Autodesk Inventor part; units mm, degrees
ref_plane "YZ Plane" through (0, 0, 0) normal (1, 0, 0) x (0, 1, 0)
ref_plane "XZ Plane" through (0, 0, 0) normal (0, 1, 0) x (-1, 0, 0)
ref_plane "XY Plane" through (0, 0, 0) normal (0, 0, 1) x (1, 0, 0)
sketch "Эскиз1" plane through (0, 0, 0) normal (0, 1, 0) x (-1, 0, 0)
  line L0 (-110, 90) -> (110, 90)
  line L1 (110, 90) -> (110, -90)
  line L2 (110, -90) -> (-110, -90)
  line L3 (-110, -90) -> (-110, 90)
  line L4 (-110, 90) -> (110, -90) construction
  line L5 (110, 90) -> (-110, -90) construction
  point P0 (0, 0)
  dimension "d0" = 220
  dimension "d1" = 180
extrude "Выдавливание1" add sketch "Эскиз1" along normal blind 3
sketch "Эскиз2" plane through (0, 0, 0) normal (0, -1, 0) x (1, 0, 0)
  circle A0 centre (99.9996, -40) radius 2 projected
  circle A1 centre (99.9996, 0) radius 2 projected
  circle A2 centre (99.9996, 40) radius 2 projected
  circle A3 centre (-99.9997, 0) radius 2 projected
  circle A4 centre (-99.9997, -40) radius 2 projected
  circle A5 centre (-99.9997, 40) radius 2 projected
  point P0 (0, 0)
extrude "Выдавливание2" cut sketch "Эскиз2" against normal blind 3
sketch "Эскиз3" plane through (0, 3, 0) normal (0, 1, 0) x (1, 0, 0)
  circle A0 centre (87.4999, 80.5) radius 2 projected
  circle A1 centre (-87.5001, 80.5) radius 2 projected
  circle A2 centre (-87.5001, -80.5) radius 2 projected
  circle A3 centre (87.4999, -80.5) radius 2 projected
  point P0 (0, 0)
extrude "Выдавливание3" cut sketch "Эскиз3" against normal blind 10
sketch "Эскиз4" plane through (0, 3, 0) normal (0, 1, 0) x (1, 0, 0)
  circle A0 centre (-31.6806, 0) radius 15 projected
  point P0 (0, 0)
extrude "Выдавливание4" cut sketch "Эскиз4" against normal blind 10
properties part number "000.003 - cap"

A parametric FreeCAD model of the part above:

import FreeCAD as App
import Part
import Sketcher
from FreeCAD import Vector


def add_polygon(sketch, points):
    """Adds a closed chain of lines whose ends are joined by coincident constraints."""
    first, n = sketch.GeometryCount, len(points)
    for a, b in zip(points, points[1:] + points[:1]):
        sketch.addGeometry(Part.LineSegment(App.Vector(*a, 0), App.Vector(*b, 0)), False)
    for i in range(n):
        sketch.addConstraint(Sketcher.Constraint("Coincident", first + i, 2, first + (i + 1) % n, 1))

doc = App.newDocument("Part")
params = doc.addObject("Spreadsheet::Sheet", "Params")
for row, (alias, value) in enumerate([
    ("sketch1_width", "220 mm"),
    ("sketch1_height", "180 mm"),
    ("pad1_length", "3 mm"),
    ("sketch2_diameter", "4 mm"),
    ("pocket1_length", "3 mm"),
    ("sketch3_diameter", "4 mm"),
    ("pocket2_length", "10 mm"),
    ("sketch4_diameter", "30 mm"),
    ("pocket3_length", "10 mm"),
], start=1):
    params.set(f"A{row}", alias)
    params.set(f"B{row}", "=" + value)
    params.setAlias(f"B{row}", alias)

body = doc.addObject("PartDesign::Body", "Body")

sketch1 = doc.addObject("Sketcher::SketchObject", "Sketch")
body.addObject(sketch1)
sketch1.AttachmentSupport = (doc.XZ_Plane, [""])
sketch1.MapMode = "FlatFace"
add_polygon(sketch1, [(-110, 90), (110, 90), (110, -90), (-110, -90)])
sketch1.addConstraint([
    Sketcher.Constraint("Horizontal", 0),
    Sketcher.Constraint("Vertical", 1),
    Sketcher.Constraint("Horizontal", 2),
    Sketcher.Constraint("Vertical", 3),
    Sketcher.Constraint("Symmetric", 0, 2, 2, 2, -1, 1),
    Sketcher.Constraint("DistanceX", 0, 1, 0, 2, 220.0),
    Sketcher.Constraint("DistanceY", 1, 2, 1, 1, 180.0),
])
sketch1.setExpression("Constraints[9]", "Params.sketch1_width")
sketch1.setExpression("Constraints[10]", "Params.sketch1_height")
pad1 = doc.addObject("PartDesign::Pad", "Pad")
body.addObject(pad1)
pad1.Profile = sketch1
pad1.setExpression("Length", "Params.pad1_length")
pad1.Reversed = True

sketch2 = doc.addObject("Sketcher::SketchObject", "Sketch001")
body.addObject(sketch2)
sketch2.AttachmentSupport = (doc.XZ_Plane, [""])
sketch2.MapMode = "FlatFace"
sketch2.addGeometry([
    Part.Circle(Vector(100, -40, 0), Vector(0, 0, 1), 2),
    Part.Circle(Vector(100, 0, 0), Vector(0, 0, 1), 2),
    Part.Circle(Vector(100, 40, 0), Vector(0, 0, 1), 2),
    Part.Circle(Vector(-100, 0, 0), Vector(0, 0, 1), 2),
    Part.Circle(Vector(-100, -40, 0), Vector(0, 0, 1), 2),
    Part.Circle(Vector(-100, 40, 0), Vector(0, 0, 1), 2),
], False)
sketch2.addConstraint([
    Sketcher.Constraint("Equal", 0, 1),
    Sketcher.Constraint("Equal", 1, 2),
    Sketcher.Constraint("Equal", 2, 3),
    Sketcher.Constraint("Equal", 3, 4),
    Sketcher.Constraint("Equal", 4, 5),
    Sketcher.Constraint("Symmetric", 1, 3, 3, 3, -1, 1),
    Sketcher.Constraint("Symmetric", 2, 3, 4, 3, -1, 1),
    Sketcher.Constraint("Symmetric", 0, 3, 5, 3, -1, 1),
    Sketcher.Constraint("Symmetric", 0, 3, 4, 3, -2),
    Sketcher.Constraint("PointOnObject", 1, 3, -1),
    Sketcher.Constraint("Vertical", 0, 3, 1, 3),
    Sketcher.Constraint("Diameter", 0, 4.0),
    Sketcher.Constraint("DistanceY", 0, 3, -1, 1, 40.0),
    Sketcher.Constraint("DistanceX", -1, 1, 0, 3, 99.9996),
])
sketch2.setExpression("Constraints[11]", "Params.sketch2_diameter")
pocket1 = doc.addObject("PartDesign::Pocket", "Pocket")
body.addObject(pocket1)
pocket1.Profile = sketch2
pocket1.setExpression("Length", "Params.pocket1_length")

sketch3 = doc.addObject("Sketcher::SketchObject", "Sketch002")
body.addObject(sketch3)
sketch3.AttachmentSupport = (doc.XZ_Plane, [""])
sketch3.MapMode = "FlatFace"
sketch3.AttachmentOffset = App.Placement(Vector(0, 0, -3), App.Rotation())
sketch3.addGeometry([
    Part.Circle(Vector(87.5, -80.5, 0), Vector(0, 0, 1), 2),
    Part.Circle(Vector(-87.5, -80.5, 0), Vector(0, 0, 1), 2),
    Part.Circle(Vector(-87.5, 80.5, 0), Vector(0, 0, 1), 2),
    Part.Circle(Vector(87.5, 80.5, 0), Vector(0, 0, 1), 2),
], False)
sketch3.addConstraint([
    Sketcher.Constraint("Equal", 0, 1),
    Sketcher.Constraint("Equal", 1, 2),
    Sketcher.Constraint("Equal", 2, 3),
    Sketcher.Constraint("Symmetric", 0, 3, 2, 3, -1, 1),
    Sketcher.Constraint("Symmetric", 1, 3, 3, 3, -1, 1),
    Sketcher.Constraint("Symmetric", 0, 3, 1, 3, -2),
    Sketcher.Constraint("Diameter", 0, 4.0),
    Sketcher.Constraint("DistanceX", 1, 3, 0, 3, 175.0),
    Sketcher.Constraint("DistanceY", 1, 3, 2, 3, 161.0),
])
sketch3.setExpression("Constraints[6]", "Params.sketch3_diameter")
pocket2 = doc.addObject("PartDesign::Pocket", "Pocket001")
body.addObject(pocket2)
pocket2.Profile = sketch3
pocket2.setExpression("Length", "Params.pocket2_length")
pocket2.Reversed = True

sketch4 = doc.addObject("Sketcher::SketchObject", "Sketch003")
body.addObject(sketch4)
sketch4.AttachmentSupport = (doc.XZ_Plane, [""])
sketch4.MapMode = "FlatFace"
sketch4.AttachmentOffset = App.Placement(Vector(0, 0, -3), App.Rotation())
sketch4.addGeometry(Part.Circle(Vector(-32, 0, 0), Vector(0, 0, 1), 15), False)
sketch4.addConstraint([
    Sketcher.Constraint("PointOnObject", 0, 3, -1),
    Sketcher.Constraint("Diameter", 0, 30.0),
    Sketcher.Constraint("DistanceX", 0, 3, -1, 1, 31.6806),
])
sketch4.setExpression("Constraints[1]", "Params.sketch4_diameter")
pocket3 = doc.addObject("PartDesign::Pocket", "Pocket002")
body.addObject(pocket3)
pocket3.Profile = sketch4
pocket3.setExpression("Length", "Params.pocket3_length")
pocket3.Reversed = True

doc.recompute()
